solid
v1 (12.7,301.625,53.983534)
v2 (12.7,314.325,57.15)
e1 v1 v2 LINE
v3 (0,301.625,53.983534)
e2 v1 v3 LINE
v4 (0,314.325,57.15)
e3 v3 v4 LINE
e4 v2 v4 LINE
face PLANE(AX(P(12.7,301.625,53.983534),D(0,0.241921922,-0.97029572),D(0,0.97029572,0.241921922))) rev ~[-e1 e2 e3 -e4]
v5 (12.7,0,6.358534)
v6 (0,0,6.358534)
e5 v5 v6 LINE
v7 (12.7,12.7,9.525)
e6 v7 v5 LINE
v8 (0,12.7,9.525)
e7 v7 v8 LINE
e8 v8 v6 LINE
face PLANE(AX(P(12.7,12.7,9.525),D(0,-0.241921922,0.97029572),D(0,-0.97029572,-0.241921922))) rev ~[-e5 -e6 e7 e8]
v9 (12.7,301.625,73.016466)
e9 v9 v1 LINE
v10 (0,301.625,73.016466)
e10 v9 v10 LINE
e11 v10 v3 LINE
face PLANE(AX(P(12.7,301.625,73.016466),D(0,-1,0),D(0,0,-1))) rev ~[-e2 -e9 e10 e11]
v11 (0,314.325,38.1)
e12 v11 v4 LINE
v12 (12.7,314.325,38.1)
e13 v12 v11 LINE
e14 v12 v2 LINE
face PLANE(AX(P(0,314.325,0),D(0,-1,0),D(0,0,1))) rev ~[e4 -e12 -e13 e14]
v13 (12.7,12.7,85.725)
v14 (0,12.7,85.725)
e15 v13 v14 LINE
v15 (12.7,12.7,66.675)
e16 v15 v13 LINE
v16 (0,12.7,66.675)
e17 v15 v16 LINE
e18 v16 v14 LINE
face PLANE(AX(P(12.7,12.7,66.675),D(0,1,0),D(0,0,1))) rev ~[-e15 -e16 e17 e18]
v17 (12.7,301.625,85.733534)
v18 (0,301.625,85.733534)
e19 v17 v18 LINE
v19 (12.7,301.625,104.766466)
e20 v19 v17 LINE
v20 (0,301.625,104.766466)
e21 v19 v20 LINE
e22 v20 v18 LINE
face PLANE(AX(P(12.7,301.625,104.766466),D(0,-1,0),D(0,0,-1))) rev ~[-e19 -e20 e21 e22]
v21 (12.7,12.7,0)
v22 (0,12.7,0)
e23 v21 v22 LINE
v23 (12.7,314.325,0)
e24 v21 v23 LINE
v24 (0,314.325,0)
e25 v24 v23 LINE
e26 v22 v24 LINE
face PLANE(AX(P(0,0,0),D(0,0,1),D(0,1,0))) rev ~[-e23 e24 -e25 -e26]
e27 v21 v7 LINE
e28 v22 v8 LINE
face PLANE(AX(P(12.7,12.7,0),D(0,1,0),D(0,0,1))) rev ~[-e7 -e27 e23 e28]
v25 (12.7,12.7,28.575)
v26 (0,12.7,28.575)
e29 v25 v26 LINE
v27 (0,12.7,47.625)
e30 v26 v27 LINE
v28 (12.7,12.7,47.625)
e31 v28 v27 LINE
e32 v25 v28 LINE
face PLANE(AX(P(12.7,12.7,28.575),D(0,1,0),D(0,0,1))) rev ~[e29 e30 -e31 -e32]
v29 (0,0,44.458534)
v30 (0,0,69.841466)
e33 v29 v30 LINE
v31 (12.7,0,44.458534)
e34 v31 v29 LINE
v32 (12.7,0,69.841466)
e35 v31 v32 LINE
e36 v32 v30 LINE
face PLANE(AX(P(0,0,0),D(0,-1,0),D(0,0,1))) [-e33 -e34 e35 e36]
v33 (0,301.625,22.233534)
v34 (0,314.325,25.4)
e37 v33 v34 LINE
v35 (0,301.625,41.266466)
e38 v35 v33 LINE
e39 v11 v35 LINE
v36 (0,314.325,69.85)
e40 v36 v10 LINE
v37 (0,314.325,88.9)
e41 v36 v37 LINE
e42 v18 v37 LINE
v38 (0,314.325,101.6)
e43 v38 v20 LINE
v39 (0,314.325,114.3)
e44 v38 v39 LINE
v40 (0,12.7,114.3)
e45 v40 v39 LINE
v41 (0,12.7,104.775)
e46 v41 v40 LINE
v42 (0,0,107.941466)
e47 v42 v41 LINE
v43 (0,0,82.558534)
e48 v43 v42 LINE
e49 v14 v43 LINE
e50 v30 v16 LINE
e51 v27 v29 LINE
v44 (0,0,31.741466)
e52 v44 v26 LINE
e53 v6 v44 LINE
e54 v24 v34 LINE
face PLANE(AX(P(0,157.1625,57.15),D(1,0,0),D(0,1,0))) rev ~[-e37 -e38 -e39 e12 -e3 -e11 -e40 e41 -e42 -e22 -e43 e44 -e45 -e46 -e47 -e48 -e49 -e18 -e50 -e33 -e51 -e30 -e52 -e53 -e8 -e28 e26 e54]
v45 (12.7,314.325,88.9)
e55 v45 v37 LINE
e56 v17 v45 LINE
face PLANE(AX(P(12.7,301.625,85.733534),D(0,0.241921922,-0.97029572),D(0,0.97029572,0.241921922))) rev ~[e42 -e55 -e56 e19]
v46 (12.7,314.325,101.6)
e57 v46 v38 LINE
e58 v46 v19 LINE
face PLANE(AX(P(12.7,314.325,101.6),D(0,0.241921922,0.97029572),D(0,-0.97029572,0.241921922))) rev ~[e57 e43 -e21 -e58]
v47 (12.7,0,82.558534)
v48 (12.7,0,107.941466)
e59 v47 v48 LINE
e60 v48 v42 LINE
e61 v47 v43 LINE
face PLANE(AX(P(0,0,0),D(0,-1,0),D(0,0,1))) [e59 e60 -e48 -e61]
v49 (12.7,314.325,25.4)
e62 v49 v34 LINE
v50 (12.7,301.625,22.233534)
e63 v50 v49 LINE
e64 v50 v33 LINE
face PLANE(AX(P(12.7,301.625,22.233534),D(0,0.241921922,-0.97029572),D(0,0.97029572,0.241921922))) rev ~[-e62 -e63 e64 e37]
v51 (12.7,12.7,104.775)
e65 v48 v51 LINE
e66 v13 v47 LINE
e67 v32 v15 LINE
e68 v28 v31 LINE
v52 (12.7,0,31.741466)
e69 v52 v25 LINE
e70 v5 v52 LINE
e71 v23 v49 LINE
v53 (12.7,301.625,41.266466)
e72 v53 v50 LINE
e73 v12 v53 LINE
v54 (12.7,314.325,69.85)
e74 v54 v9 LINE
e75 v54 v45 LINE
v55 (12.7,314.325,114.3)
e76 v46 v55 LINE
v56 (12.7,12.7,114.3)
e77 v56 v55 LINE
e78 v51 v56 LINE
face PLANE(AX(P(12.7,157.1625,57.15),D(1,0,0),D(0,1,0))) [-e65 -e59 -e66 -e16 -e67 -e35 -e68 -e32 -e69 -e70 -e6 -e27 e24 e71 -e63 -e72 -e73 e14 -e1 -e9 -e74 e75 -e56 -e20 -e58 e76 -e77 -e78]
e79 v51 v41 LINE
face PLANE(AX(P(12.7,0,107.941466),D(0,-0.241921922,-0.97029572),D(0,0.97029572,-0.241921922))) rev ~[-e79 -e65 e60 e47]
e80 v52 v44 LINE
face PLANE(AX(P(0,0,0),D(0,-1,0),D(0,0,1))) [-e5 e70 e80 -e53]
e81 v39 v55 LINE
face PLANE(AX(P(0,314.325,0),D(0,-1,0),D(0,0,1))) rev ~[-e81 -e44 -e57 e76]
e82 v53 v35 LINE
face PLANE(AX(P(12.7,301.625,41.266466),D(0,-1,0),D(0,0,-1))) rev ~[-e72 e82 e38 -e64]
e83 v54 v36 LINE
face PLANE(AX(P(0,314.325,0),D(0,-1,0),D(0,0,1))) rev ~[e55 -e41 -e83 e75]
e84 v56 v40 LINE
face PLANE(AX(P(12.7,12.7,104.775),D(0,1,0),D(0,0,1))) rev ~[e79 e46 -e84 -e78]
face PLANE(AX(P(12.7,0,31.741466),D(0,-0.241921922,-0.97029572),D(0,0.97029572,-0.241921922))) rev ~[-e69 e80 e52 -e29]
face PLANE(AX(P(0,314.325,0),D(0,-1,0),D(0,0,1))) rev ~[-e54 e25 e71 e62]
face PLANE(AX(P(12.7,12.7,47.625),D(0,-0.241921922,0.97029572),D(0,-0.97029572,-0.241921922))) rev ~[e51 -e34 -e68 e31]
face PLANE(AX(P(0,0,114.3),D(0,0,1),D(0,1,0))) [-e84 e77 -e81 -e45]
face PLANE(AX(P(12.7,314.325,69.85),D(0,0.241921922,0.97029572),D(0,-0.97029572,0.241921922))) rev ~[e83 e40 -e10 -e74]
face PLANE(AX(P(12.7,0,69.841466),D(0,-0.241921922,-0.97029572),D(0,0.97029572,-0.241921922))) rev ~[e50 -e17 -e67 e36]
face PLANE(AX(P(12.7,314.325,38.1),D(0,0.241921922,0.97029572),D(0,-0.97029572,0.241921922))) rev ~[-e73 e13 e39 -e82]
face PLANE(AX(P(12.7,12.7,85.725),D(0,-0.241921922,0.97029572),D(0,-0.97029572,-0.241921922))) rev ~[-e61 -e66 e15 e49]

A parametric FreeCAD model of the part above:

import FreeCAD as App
import Part
import Sketcher

V = App.Vector
Q = App.Units.Quantity


def add_polygon(sketch, points):
    """Adds a closed chain of lines whose ends are joined by coincident constraints."""
    first, n = sketch.GeometryCount, len(points)
    for a, b in zip(points, points[1:] + points[:1]):
        sketch.addGeometry(Part.LineSegment(App.Vector(*a, 0), App.Vector(*b, 0)), False)
    for i in range(n):
        sketch.addConstraint(Sketcher.Constraint("Coincident", first + i, 2, first + (i + 1) % n, 1))

doc = App.newDocument("Part")
body = doc.addObject("PartDesign::Body", "Body")

sketch1 = body.newObject("Sketcher::SketchObject", "Sketch")
sketch1.AttachmentSupport = (doc.getObject("YZ_Plane"), [""])
sketch1.MapMode = "FlatFace"
add_polygon(sketch1, [(0, 114), (0, 0), (314, 0), (314, 114)])
sketch1.addConstraint([
    Sketcher.Constraint("Vertical", 0),
    Sketcher.Constraint("Horizontal", 1),
    Sketcher.Constraint("Vertical", 2),
    Sketcher.Constraint("Horizontal", 3),
    Sketcher.Constraint("Coincident", 0, 2, -1, 1),
    Sketcher.Constraint("DistanceY", 0, 2, 0, 1, Q("4.5 in")),
    Sketcher.Constraint("DistanceX", 1, 1, 1, 2, Q("12.375 in")),
])
pad1 = body.newObject("PartDesign::Pad", "Pad")
pad1.Profile = sketch1
pad1.Length = Q("0.5 in")

sketch2 = body.newObject("Sketcher::SketchObject", "Sketch001")
sketch2.AttachmentSupport = (doc.getObject("YZ_Plane"), [""])
sketch2.MapMode = "FlatFace"
sketch2.AttachmentOffset = App.Placement(V(0, 0, 0.5 * 25.4), App.Rotation())
add_polygon(sketch2, [(13, 10), (0, 6), (0, 0), (13, 0)])
add_polygon(sketch2, [(13, 48), (0, 44), (0, 32), (13, 29)])
add_polygon(sketch2, [(13, 86), (0, 83), (0, 70), (13, 67)])
add_polygon(sketch2, [(13, 105), (13, 114), (0, 114), (0, 108)])
add_polygon(sketch2, [(314, 89), (314, 102), (302, 105), (302, 86)])
add_polygon(sketch2, [(314, 57), (314, 70), (302, 73), (302, 54)])
add_polygon(sketch2, [(314, 25), (314, 38), (302, 41), (302, 22)])
sketch2.addConstraint([
    Sketcher.Constraint("Vertical", 1),
    Sketcher.Constraint("Horizontal", 2),
    Sketcher.Constraint("Vertical", 3),
    Sketcher.Constraint("Vertical", 5),
    Sketcher.Constraint("Vertical", 7),
    Sketcher.Constraint("Vertical", 9),
    Sketcher.Constraint("Vertical", 11),
    Sketcher.Constraint("Vertical", 12),
    Sketcher.Constraint("Horizontal", 13),
    Sketcher.Constraint("Vertical", 14),
    Sketcher.Constraint("Vertical", 16),
    Sketcher.Constraint("Vertical", 18),
    Sketcher.Constraint("Vertical", 20),
    Sketcher.Constraint("Vertical", 22),
    Sketcher.Constraint("Vertical", 24),
    Sketcher.Constraint("Vertical", 26),
    Sketcher.Constraint("Coincident", 1, 2, -1, 1),
    Sketcher.Constraint("PointOnObject", 4, 2, -2),
    Sketcher.Constraint("PointOnObject", 8, 2, -2),
    Sketcher.Constraint("PointOnObject", 13, 2, -2),
    Sketcher.Constraint("Parallel", 0, 4),
    Sketcher.Constraint("Parallel", 4, 8),
    Sketcher.Constraint("Parallel", 6, 10),
    Sketcher.Constraint("Parallel", 10, 15),
    Sketcher.Constraint("Parallel", 15, 17),
    Sketcher.Constraint("Parallel", 8, 19),
    Sketcher.Constraint("Parallel", 17, 21),
    Sketcher.Constraint("Parallel", 19, 23),
    Sketcher.Constraint("Parallel", 21, 25),
    Sketcher.Constraint("Parallel", 23, 27),
    Sketcher.Constraint("Vertical", 3, 2, 6, 2),
    Sketcher.Constraint("Vertical", 7, 2, 10, 2),
    Sketcher.Constraint("Vertical", 11, 2, 12, 2),
    Sketcher.Constraint("Vertical", 19, 2, 20, 2),
    Sketcher.Constraint("Vertical", 18, 2, 21, 2),
    Sketcher.Constraint("Vertical", 23, 2, 24, 2),
    Sketcher.Constraint("Vertical", 22, 2, 25, 2),
    Sketcher.Constraint("Equal", 5, 9),
    Sketcher.Constraint("Equal", 3, 12),
    Sketcher.Constraint("Equal", 1, 14),
    Sketcher.Constraint("Equal", 13, 16),
    Sketcher.Constraint("Equal", 16, 20),
    Sketcher.Constraint("Equal", 20, 24),
    Sketcher.Constraint("Equal", 15, 17),
    Sketcher.Constraint("DistanceX", 2, 1, 2, 2, Q("0.5 in")),
    Sketcher.Constraint("DistanceY", -1, 1, 16, 2, Q("4 in")),
    Sketcher.Constraint("DistanceY", -1, 1, 27, 2, Q("1 in")),
    Sketcher.Constraint("Angle", 0, Q("-165.999998 deg")),
    Sketcher.Constraint("DistanceY", 7, 1, 7, 2, Q("0.75 in")),
    Sketcher.Constraint("DistanceY", -1, 1, 12, 2, Q("4.5 in")),
    Sketcher.Constraint("DistanceY", 0, 2, 4, 2, Q("1.5 in")),
    Sketcher.Constraint("DistanceY", 4, 2, 8, 2, Q("1.5 in")),
    Sketcher.Constraint("DistanceY", 9, 2, 14, 2, Q("1.5 in")),
    Sketcher.Constraint("DistanceY", -1, 1, 20, 2, Q("2.75 in")),
    Sketcher.Constraint("DistanceX", -1, 1, 16, 2, Q("12.375 in")),
])
pocket1 = body.newObject("PartDesign::Pocket", "Pocket")
pocket1.Profile = sketch2
pocket1.Type = "ThroughAll"

doc.recompute()
